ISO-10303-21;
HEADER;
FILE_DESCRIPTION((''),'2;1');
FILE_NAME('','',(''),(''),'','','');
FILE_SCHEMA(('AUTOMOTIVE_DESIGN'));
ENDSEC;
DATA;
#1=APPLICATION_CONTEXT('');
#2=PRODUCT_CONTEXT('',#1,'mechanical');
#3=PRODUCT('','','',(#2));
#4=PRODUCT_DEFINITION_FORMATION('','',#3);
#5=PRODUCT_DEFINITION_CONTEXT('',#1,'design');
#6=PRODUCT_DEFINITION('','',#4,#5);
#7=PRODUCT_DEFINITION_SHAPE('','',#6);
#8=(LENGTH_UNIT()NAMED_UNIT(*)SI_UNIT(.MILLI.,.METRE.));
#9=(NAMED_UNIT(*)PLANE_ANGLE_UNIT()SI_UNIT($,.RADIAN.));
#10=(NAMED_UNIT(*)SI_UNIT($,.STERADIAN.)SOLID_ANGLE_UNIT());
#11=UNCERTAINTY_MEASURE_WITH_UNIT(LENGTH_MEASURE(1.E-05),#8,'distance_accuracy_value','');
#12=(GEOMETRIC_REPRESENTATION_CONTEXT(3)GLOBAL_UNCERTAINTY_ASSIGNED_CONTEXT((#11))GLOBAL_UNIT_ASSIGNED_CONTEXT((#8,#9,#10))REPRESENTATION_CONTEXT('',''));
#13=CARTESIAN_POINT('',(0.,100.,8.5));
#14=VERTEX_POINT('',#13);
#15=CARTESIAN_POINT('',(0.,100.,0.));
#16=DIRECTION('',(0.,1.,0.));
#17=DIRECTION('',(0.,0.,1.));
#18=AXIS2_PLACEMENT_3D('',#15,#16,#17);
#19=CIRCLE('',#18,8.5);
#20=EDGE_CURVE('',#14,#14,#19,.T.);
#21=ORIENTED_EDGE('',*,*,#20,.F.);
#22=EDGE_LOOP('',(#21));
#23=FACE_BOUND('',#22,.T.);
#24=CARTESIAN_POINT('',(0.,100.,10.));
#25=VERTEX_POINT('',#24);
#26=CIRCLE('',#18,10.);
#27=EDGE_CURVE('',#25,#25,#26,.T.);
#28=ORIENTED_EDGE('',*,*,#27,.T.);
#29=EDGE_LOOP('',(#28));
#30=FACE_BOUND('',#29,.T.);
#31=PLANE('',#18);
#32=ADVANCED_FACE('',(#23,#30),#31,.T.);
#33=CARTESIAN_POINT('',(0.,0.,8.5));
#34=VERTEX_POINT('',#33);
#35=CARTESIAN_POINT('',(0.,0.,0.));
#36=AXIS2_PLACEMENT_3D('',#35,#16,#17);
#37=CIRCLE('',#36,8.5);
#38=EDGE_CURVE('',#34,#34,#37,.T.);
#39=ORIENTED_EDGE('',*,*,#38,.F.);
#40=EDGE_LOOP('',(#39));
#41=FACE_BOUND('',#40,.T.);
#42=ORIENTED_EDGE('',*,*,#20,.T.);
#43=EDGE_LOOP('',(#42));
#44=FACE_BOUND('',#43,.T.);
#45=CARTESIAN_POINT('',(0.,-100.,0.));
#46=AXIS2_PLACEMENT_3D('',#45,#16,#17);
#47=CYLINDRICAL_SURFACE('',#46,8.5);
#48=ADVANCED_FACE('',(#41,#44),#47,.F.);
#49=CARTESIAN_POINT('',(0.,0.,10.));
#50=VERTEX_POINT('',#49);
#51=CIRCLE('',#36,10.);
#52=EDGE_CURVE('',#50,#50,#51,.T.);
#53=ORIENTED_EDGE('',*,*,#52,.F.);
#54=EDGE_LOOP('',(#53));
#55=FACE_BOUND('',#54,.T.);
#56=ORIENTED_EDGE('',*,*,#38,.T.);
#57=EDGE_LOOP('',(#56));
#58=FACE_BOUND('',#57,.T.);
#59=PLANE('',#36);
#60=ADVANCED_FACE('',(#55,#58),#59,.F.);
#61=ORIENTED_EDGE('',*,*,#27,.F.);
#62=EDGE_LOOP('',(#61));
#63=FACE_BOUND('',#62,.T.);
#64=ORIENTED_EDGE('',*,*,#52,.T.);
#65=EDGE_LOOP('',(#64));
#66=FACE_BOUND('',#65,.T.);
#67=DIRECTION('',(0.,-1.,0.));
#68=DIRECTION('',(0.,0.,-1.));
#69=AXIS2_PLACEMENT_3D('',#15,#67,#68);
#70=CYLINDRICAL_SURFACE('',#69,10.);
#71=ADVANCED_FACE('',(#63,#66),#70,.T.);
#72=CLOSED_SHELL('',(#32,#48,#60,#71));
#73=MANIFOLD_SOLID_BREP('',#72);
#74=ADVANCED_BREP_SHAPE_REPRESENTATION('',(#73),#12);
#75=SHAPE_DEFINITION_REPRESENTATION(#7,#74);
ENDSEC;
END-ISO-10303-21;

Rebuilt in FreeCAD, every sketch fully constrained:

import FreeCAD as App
import Part
import Sketcher
from FreeCAD import Vector
Q = App.Units.Quantity

doc = App.newDocument("Part")
body = doc.addObject("PartDesign::Body", "Body")

# Sketch on XZ plane
sketch1 = doc.addObject("Sketcher::SketchObject", "Sketch")
body.addObject(sketch1)
sketch1.AttachmentSupport = (doc.XZ_Plane, [""])
sketch1.MapMode = "FlatFace"
sketch1.addGeometry(Part.Circle(Vector(0, 0, 0), Vector(0, 0, 1), 10), False)
sketch1.addConstraint(Sketcher.Constraint("Coincident", 0, 3, -1, 1))
sketch1.addConstraint(Sketcher.Constraint("Diameter", 0, Q("20 mm")))
pad1 = doc.addObject("PartDesign::Pad", "Pad")
body.addObject(pad1)
pad1.Profile = sketch1
pad1.Length = 100
pad1.Reversed = True

# Sketch on XZ plane
sketch2 = doc.addObject("Sketcher::SketchObject", "Sketch001")
body.addObject(sketch2)
sketch2.AttachmentSupport = (doc.XZ_Plane, [""])
sketch2.MapMode = "FlatFace"
sketch2.AttachmentOffset = App.Placement(Vector(0, 0, -100), App.Rotation())
sketch2.addGeometry(Part.Circle(Vector(0, 0, 0), Vector(0, 0, 1), 8), False)
sketch2.addConstraint(Sketcher.Constraint("Coincident", 0, 3, -1, 1))
sketch2.addConstraint(Sketcher.Constraint("Diameter", 0, Q("17 mm")))
pocket1 = doc.addObject("PartDesign::Pocket", "Pocket")
body.addObject(pocket1)
pocket1.Profile = sketch2
pocket1.Length = 200
pocket1.Reversed = True

doc.recompute()
